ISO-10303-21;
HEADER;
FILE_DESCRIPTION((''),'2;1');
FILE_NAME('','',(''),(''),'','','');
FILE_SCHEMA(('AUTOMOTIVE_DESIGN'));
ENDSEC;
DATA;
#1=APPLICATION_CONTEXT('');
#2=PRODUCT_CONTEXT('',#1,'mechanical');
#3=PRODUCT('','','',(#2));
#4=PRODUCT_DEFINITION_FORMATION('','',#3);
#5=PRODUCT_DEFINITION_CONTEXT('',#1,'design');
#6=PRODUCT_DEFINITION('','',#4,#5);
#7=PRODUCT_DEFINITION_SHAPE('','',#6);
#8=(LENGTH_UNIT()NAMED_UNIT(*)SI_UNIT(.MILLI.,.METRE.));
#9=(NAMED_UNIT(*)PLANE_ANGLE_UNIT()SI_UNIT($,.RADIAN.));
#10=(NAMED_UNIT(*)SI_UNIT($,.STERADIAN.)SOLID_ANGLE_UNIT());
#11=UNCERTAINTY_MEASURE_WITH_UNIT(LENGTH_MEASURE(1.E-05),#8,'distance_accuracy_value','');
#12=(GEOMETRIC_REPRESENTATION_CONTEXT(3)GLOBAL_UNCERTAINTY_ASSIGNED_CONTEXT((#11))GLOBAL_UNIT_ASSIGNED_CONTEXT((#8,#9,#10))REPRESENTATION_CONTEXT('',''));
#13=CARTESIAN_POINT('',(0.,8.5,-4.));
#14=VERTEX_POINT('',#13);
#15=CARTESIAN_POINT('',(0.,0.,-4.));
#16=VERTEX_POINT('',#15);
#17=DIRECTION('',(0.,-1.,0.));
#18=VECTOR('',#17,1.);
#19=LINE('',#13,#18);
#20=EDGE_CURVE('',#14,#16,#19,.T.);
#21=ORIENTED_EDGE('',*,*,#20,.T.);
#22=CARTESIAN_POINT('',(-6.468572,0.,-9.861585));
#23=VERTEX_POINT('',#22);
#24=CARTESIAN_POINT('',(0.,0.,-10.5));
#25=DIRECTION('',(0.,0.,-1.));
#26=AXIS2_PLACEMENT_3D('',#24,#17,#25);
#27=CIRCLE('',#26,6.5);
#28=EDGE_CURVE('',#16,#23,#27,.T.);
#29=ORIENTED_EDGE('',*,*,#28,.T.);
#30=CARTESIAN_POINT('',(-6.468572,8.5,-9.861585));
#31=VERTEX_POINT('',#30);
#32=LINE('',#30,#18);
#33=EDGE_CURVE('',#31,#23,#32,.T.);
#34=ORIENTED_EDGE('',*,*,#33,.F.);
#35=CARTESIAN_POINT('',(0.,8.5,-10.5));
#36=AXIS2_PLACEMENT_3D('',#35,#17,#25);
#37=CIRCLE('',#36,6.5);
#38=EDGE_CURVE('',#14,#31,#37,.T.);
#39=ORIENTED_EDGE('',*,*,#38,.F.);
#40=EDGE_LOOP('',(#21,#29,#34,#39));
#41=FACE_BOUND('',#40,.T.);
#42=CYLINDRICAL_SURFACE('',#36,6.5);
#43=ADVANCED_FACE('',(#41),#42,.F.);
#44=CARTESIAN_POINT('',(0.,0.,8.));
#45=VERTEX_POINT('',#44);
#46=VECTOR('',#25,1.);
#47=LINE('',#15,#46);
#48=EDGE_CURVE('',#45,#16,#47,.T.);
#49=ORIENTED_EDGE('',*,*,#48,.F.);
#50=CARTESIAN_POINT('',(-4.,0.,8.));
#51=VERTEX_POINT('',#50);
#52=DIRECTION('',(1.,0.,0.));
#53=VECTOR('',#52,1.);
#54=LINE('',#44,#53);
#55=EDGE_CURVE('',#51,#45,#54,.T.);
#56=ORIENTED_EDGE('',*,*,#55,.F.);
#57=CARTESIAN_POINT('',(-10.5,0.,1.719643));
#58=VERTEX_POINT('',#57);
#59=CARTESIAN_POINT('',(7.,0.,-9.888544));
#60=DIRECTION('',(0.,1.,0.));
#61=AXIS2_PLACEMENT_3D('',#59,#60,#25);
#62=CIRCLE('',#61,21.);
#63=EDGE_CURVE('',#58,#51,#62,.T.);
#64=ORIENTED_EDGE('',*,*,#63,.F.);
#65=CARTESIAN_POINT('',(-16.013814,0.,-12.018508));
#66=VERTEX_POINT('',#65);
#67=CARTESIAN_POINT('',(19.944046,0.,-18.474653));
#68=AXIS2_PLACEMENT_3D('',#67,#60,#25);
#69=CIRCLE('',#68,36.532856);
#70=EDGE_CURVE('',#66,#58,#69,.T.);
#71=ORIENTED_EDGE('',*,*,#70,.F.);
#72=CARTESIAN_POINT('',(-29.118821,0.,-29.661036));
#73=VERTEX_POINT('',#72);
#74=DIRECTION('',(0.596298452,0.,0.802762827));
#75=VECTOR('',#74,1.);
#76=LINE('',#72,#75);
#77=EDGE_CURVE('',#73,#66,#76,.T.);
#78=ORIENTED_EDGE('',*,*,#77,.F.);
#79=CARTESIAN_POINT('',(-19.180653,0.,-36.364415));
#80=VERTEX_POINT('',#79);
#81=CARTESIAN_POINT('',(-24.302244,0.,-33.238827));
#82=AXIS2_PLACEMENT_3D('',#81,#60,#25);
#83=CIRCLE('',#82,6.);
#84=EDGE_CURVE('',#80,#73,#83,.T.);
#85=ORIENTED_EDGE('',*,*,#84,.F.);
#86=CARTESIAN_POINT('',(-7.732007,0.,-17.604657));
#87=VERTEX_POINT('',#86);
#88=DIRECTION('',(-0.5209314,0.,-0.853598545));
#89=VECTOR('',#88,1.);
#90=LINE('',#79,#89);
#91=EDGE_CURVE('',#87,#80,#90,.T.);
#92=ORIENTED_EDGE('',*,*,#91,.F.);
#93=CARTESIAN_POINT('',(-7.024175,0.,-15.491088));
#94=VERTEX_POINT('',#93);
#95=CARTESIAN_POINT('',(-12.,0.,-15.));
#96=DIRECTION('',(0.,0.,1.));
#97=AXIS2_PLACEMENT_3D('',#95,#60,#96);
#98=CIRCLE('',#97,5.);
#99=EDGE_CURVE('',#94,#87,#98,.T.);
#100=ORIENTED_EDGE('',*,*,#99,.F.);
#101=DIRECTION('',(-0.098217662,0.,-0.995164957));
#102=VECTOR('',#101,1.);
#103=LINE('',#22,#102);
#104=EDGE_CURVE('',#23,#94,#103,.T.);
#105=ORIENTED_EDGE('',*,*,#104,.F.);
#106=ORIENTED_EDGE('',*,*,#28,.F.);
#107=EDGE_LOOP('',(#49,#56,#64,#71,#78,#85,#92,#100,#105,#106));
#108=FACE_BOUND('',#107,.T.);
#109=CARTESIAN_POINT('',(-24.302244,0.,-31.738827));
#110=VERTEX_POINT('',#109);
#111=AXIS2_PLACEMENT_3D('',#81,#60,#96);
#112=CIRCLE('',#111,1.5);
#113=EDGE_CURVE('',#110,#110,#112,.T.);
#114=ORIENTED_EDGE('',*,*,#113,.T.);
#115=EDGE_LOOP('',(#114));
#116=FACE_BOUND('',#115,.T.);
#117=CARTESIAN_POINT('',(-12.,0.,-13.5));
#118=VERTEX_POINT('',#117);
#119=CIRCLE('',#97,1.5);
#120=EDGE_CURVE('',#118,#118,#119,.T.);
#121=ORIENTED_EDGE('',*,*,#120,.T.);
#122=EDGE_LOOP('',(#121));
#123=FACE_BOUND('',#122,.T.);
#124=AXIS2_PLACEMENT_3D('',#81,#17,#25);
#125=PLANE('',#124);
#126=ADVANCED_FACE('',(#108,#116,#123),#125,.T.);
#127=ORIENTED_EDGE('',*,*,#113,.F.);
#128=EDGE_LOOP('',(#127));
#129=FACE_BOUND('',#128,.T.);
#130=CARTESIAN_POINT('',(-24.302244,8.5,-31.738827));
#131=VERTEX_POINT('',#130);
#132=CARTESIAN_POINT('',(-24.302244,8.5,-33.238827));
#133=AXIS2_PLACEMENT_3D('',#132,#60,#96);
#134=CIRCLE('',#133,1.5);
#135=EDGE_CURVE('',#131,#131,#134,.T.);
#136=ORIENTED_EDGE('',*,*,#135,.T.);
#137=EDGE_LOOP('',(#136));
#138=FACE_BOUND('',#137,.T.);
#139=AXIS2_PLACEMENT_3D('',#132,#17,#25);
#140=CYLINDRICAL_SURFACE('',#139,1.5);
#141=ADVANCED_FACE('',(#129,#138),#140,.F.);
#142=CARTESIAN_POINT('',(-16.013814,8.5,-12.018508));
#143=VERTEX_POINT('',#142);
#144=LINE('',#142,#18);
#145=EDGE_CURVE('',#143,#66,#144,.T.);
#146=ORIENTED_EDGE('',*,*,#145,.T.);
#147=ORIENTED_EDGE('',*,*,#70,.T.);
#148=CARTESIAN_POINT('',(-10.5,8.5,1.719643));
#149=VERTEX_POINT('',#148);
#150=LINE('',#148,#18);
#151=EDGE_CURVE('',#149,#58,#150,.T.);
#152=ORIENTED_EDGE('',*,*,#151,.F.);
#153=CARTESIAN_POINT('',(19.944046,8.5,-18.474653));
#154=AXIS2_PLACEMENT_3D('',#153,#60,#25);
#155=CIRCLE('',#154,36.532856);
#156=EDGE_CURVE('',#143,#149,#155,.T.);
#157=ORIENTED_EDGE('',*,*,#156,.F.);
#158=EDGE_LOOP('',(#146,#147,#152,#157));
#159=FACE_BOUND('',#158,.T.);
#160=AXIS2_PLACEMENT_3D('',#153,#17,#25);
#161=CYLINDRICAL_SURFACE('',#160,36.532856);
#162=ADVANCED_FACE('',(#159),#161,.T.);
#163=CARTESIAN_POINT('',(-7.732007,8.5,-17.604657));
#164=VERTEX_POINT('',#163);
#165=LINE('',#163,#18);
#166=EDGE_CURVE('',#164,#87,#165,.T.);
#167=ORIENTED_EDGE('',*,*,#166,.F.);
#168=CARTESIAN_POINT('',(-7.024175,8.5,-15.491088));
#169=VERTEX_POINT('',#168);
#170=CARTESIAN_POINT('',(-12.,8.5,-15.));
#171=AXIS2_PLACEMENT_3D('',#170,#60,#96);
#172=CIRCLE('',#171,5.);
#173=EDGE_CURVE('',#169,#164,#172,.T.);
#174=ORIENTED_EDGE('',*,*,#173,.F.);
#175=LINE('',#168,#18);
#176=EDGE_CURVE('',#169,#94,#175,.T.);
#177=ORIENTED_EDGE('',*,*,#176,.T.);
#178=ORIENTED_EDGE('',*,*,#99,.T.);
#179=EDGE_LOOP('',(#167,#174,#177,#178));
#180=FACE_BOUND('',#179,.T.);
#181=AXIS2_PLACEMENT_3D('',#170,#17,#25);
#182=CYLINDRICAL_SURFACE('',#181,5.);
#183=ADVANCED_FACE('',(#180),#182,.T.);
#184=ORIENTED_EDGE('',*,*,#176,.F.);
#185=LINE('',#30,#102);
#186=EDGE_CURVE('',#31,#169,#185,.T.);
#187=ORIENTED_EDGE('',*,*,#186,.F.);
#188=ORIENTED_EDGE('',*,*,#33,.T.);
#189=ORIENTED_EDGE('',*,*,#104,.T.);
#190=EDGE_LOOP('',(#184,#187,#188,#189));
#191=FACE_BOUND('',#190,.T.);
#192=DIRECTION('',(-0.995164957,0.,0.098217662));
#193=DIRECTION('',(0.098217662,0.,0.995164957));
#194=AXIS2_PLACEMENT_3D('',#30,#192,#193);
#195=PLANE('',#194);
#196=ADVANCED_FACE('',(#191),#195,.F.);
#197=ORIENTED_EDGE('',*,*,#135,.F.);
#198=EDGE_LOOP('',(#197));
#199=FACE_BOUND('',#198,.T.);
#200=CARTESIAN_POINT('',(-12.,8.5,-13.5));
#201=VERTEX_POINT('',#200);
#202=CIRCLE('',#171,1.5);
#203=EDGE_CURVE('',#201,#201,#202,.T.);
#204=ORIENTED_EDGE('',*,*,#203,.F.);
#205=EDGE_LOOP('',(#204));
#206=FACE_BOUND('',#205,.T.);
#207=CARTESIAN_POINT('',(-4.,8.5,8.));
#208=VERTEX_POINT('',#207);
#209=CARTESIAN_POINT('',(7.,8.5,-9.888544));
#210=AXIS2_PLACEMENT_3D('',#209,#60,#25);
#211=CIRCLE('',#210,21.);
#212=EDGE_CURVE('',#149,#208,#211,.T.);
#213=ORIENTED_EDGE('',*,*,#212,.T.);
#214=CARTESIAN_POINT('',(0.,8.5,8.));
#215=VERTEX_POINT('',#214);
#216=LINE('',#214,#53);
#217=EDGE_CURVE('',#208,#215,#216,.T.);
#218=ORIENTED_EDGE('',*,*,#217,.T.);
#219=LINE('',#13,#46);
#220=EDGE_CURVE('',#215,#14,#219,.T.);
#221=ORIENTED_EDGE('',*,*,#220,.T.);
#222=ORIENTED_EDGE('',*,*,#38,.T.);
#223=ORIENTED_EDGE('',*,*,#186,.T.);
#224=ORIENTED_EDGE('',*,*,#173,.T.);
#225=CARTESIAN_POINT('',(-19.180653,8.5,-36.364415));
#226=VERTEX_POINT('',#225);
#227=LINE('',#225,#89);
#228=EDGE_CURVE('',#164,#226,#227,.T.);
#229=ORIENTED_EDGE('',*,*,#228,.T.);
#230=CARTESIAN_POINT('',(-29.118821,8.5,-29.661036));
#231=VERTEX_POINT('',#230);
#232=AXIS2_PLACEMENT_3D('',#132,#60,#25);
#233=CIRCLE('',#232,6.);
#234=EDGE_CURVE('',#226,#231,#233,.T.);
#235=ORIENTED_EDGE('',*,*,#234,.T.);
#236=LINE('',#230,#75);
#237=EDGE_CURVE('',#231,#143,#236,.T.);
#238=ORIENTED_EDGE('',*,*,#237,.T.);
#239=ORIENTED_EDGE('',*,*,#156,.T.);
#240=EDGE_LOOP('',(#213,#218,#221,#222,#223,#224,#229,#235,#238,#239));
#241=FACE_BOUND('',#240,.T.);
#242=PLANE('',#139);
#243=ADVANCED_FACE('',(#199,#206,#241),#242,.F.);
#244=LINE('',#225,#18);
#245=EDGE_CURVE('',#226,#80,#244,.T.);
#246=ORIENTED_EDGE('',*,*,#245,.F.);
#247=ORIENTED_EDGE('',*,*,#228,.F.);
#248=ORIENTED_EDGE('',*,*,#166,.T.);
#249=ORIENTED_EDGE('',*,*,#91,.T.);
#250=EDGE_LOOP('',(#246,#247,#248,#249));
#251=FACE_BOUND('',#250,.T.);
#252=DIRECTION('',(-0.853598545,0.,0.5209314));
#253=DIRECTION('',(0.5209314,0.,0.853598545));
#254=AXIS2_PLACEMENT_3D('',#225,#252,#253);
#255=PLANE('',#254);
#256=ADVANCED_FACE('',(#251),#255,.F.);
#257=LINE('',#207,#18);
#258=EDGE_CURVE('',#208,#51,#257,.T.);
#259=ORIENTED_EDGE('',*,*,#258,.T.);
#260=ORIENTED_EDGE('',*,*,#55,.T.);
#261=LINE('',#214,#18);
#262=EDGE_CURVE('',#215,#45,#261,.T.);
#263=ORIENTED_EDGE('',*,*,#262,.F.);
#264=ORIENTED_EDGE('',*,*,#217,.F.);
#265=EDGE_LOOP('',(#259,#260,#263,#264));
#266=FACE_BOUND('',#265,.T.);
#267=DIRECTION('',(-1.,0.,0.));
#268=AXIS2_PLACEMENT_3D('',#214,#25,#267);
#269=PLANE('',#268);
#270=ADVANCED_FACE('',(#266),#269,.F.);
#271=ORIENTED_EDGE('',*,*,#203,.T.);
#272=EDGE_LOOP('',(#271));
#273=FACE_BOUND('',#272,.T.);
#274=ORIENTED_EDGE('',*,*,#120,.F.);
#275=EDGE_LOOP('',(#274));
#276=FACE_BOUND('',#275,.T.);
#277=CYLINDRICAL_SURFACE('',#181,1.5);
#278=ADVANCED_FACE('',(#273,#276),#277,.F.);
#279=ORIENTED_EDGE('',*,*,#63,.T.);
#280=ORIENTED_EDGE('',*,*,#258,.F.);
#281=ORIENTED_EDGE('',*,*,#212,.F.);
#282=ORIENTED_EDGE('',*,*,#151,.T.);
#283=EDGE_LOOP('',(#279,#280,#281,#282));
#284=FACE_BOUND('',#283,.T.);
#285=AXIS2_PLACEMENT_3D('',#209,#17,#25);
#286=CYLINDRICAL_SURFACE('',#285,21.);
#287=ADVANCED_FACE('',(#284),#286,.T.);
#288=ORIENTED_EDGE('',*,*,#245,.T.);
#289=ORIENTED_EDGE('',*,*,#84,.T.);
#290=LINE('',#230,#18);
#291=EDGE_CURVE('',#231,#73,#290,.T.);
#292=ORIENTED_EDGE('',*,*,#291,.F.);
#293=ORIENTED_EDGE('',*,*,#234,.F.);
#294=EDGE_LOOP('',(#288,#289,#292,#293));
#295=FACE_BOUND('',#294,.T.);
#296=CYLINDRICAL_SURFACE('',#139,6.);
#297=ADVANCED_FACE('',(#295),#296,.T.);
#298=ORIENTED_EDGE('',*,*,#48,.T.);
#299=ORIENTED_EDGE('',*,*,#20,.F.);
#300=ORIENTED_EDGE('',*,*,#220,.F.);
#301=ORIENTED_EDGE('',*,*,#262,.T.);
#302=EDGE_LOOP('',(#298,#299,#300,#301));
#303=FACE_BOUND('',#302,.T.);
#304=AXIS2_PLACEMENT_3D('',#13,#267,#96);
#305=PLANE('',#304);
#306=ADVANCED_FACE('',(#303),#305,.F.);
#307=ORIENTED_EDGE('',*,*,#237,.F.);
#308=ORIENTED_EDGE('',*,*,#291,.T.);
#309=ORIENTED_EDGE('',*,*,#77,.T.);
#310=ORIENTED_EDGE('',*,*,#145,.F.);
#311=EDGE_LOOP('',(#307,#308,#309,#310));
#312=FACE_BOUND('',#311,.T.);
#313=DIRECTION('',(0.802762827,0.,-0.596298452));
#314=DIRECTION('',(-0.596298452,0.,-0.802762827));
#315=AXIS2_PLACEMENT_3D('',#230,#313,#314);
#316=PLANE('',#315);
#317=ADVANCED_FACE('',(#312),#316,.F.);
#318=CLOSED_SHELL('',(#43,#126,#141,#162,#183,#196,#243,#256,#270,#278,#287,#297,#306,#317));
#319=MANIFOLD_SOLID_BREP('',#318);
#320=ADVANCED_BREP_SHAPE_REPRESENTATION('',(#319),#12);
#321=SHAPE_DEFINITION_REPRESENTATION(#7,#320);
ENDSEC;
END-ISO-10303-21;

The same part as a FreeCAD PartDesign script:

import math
import FreeCAD as App
import Part
import Sketcher
from FreeCAD import Vector

doc = App.newDocument("Part")
body = doc.addObject("PartDesign::Body", "Body")

# Sketch on XZ plane
sketch1 = body.newObject("Sketcher::SketchObject", "Sketch")
sketch1.AttachmentSupport = (doc.getObject("XZ_Plane"), [""])
sketch1.MapMode = "FlatFace"
sketch1.addGeometry([
    Part.LineSegment(Vector(-29.1, -29.7, 0), Vector(-16, -12, 0)),  # 0
    Part.ArcOfCircle(Part.Circle(Vector(19.9, -18.5, 0), Vector(0, 0, 1), 36.5), math.radians(146), math.radians(170)),  # 1
    Part.ArcOfCircle(Part.Circle(Vector(7, -9.9, 0), Vector(0, 0, 1), 21), math.radians(122), math.radians(146)),  # 2
    Part.LineSegment(Vector(-4, 8, 0), Vector(0, 8, 0)),  # 3
    Part.LineSegment(Vector(0, 8, 0), Vector(0, -4, 0)),  # 4
    Part.ArcOfCircle(Part.Circle(Vector(0, -10.5, 0), Vector(0, 0, 1), 6.5), math.radians(90), math.radians(174)),  # 5
    Part.LineSegment(Vector(-6.5, -9.9, 0), Vector(-7, -15.5, 0)),  # 6
    Part.ArcOfCircle(Part.Circle(Vector(-12, -15, 0), Vector(0, 0, 1), 5), math.radians(-31), math.radians(-6)),  # 7
    Part.LineSegment(Vector(-7.7, -17.6, 0), Vector(-19.2, -36.4, 0)),  # 8
    Part.ArcOfCircle(Part.Circle(Vector(-24.3, -33.2, 0), Vector(0, 0, 1), 6), math.radians(143), math.radians(329)),  # 9
    Part.Circle(Vector(-12, -15, 0), Vector(0, 0, 1), 1.5),  # 10
    Part.Circle(Vector(-24.3, -33.2, 0), Vector(0, 0, 1), 1.5),  # 11
], False)
sketch1.addConstraint([
    Sketcher.Constraint("Coincident", 0, 2, 1, 2),
    Sketcher.Constraint("Tangent", 1, 1, 2, 2),
    Sketcher.Constraint("Coincident", 2, 1, 3, 1),
    Sketcher.Constraint("Coincident", 3, 2, 4, 1),
    Sketcher.Constraint("Coincident", 4, 2, 5, 1),
    Sketcher.Constraint("Tangent", 5, 2, 6, 1),
    Sketcher.Constraint("Tangent", 6, 2, 7, 2),
    Sketcher.Constraint("Tangent", 7, 1, 8, 1),
    Sketcher.Constraint("Tangent", 8, 2, 9, 2),
    Sketcher.Constraint("Tangent", 9, 1, 0, 1),
    Sketcher.Constraint("Horizontal", 3),
    Sketcher.Constraint("Vertical", 4),
    Sketcher.Constraint("Coincident", 10, 3, 7, 3),
    Sketcher.Constraint("Coincident", 11, 3, 9, 3),
    Sketcher.Constraint("Equal", 10, 11),
    Sketcher.Constraint("PointOnObject", 5, 3, -2),
    Sketcher.Constraint("PointOnObject", 3, 2, -2),
    Sketcher.Constraint("Equal", 0, 8),
    Sketcher.Constraint("Diameter", 10, 3.0),
    Sketcher.Constraint("Radius", 2, 21.0),
    Sketcher.Constraint("Radius", 7, 5.0),
    Sketcher.Constraint("Radius", 9, 6.0),
    Sketcher.Constraint("Radius", 5, 6.5),
    Sketcher.Constraint("DistanceX", 3, 1, 3, 2, 4.0),
    Sketcher.Constraint("DistanceY", 4, 2, 4, 1, 12.0),
    Sketcher.Constraint("DistanceX", -1, 1, 2, 3, 7.0),
    Sketcher.Constraint("DistanceX", 7, 3, -1, 1, 12.0),
    Sketcher.Constraint("DistanceY", 7, 3, -1, 1, 15.0),
    Sketcher.Constraint("DistanceY", -1, 1, 2, 1, 8.0),
    Sketcher.Constraint("DistanceX", 1, 1, -1, 1, 10.5),
    Sketcher.Constraint("Radius", 1, 36.532856),
    Sketcher.Constraint("Distance", 0, 21.977261),
    Sketcher.Constraint("DistanceX", 9, 1, -1, 1, 29.118821),
])
pad1 = body.newObject("PartDesign::Pad", "Pad")
pad1.Profile = sketch1
pad1.Length = 8.5
pad1.Reversed = True

doc.recompute()
